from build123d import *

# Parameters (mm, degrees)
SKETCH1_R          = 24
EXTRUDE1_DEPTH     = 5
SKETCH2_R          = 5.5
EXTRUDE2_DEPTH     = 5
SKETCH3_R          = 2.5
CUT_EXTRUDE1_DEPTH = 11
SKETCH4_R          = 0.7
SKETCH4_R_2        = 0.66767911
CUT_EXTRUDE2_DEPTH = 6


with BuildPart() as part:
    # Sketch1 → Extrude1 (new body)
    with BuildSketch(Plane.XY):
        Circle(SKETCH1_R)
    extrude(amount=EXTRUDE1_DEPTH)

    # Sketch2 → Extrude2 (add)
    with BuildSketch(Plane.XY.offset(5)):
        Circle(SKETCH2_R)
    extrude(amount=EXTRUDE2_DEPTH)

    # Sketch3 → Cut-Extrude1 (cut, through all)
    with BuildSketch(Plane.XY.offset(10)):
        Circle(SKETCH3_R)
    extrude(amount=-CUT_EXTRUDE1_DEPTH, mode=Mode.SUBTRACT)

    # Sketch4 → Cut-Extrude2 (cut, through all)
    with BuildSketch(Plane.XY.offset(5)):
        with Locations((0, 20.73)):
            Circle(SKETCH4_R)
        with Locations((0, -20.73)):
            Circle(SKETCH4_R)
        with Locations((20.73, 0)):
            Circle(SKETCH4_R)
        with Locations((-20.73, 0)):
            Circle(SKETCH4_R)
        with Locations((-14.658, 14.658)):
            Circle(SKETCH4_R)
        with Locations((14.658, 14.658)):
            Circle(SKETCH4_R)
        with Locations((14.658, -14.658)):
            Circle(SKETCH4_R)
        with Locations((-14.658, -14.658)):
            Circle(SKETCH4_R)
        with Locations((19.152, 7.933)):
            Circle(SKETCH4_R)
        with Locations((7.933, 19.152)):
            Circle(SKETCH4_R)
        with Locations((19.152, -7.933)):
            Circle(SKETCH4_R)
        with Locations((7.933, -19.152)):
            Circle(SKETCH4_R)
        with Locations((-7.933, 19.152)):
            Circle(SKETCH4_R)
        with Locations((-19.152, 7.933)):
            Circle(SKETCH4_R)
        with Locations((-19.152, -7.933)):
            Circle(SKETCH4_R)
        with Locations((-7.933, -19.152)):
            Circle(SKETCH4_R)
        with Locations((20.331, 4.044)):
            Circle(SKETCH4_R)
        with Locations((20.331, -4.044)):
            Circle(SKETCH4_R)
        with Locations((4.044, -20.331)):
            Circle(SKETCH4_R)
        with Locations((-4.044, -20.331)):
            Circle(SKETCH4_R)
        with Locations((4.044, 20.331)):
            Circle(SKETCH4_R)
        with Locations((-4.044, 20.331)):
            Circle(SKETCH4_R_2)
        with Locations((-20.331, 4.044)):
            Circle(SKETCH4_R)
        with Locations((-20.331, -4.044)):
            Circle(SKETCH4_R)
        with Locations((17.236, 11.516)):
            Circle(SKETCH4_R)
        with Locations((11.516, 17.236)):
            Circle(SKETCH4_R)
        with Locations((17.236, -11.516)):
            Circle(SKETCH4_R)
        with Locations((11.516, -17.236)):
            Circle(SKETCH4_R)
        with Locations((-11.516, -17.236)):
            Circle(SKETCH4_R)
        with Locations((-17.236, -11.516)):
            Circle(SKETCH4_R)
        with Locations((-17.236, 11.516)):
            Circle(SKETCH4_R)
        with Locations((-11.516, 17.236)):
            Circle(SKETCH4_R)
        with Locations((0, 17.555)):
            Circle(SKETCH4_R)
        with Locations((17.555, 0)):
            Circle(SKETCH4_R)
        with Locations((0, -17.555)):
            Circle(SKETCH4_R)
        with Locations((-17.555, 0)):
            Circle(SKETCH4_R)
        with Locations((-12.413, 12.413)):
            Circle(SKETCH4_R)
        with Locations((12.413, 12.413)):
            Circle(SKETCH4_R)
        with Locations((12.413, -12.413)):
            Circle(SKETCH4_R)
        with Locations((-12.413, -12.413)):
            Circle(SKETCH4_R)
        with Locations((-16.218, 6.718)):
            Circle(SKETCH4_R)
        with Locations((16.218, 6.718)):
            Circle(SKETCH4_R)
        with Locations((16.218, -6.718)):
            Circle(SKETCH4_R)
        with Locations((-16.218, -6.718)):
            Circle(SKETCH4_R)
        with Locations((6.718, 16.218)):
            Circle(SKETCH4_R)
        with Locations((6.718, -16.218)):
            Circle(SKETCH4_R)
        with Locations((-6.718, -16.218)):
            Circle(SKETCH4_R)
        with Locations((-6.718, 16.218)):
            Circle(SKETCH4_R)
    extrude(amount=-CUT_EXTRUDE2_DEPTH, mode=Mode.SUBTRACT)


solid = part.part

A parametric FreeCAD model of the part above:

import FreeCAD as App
import Part
import Sketcher
from FreeCAD import Vector

doc = App.newDocument("Part")
body = doc.addObject("PartDesign::Body", "Body")

# Sketch on XY plane
sketch1 = body.newObject("Sketcher::SketchObject", "Sketch")
sketch1.AttachmentSupport = (doc.getObject("XY_Plane"), [""])
sketch1.MapMode = "FlatFace"
sketch1.addGeometry(Part.Circle(Vector(0, 0, 0), Vector(0, 0, 1), 24), False)
sketch1.addConstraint([
    Sketcher.Constraint("Coincident", 0, 3, -1, 1),
    Sketcher.Constraint("Diameter", 0, 48.0),
])
pad1 = body.newObject("PartDesign::Pad", "Pad")
pad1.Profile = sketch1
pad1.Length = 5

# Sketch on XY plane
sketch2 = body.newObject("Sketcher::SketchObject", "Sketch001")
sketch2.AttachmentSupport = (doc.getObject("XY_Plane"), [""])
sketch2.MapMode = "FlatFace"
sketch2.AttachmentOffset = App.Placement(Vector(0, 0, 5), App.Rotation())
sketch2.addGeometry(Part.Circle(Vector(0, 0, 0), Vector(0, 0, 1), 5.5), False)
sketch2.addConstraint([
    Sketcher.Constraint("Coincident", 0, 3, -1, 1),
    Sketcher.Constraint("Diameter", 0, 11.0),
])
pad2 = body.newObject("PartDesign::Pad", "Pad001")
pad2.Profile = sketch2
pad2.Length = 5

# Sketch on XY plane
sketch3 = body.newObject("Sketcher::SketchObject", "Sketch002")
sketch3.AttachmentSupport = (doc.getObject("XY_Plane"), [""])
sketch3.MapMode = "FlatFace"
sketch3.AttachmentOffset = App.Placement(Vector(0, 0, 10), App.Rotation())
sketch3.addGeometry(Part.Circle(Vector(0, 0, 0), Vector(0, 0, 1), 2.5), False)
sketch3.addConstraint([
    Sketcher.Constraint("Coincident", 0, 3, -1, 1),
    Sketcher.Constraint("Diameter", 0, 5.0),
])
pocket1 = body.newObject("PartDesign::Pocket", "Pocket")
pocket1.Profile = sketch3
pocket1.Type = "ThroughAll"

# Sketch on XY plane
sketch4 = body.newObject("Sketcher::SketchObject", "Sketch003")
sketch4.AttachmentSupport = (doc.getObject("XY_Plane"), [""])
sketch4.MapMode = "FlatFace"
sketch4.AttachmentOffset = App.Placement(Vector(0, 0, 5), App.Rotation())
sketch4.addGeometry([
    Part.Circle(Vector(0, 20.73, 0), Vector(0, 0, 1), 0.7),  # 0
    Part.Circle(Vector(0, -20.73, 0), Vector(0, 0, 1), 0.7),  # 1
    Part.Circle(Vector(20.73, 0, 0), Vector(0, 0, 1), 0.7),  # 2
    Part.Circle(Vector(-20.73, 0, 0), Vector(0, 0, 1), 0.7),  # 3
    Part.Circle(Vector(-14.658, 14.658, 0), Vector(0, 0, 1), 0.7),  # 4
    Part.Circle(Vector(14.658, 14.658, 0), Vector(0, 0, 1), 0.7),  # 5
    Part.Circle(Vector(14.658, -14.658, 0), Vector(0, 0, 1), 0.7),  # 6
    Part.Circle(Vector(-14.658, -14.658, 0), Vector(0, 0, 1), 0.7),  # 7
    Part.Circle(Vector(19.152, 7.933, 0), Vector(0, 0, 1), 0.7),  # 8
    Part.Circle(Vector(7.933, 19.152, 0), Vector(0, 0, 1), 0.7),  # 9
    Part.Circle(Vector(19.152, -7.933, 0), Vector(0, 0, 1), 0.7),  # 10
    Part.Circle(Vector(7.933, -19.152, 0), Vector(0, 0, 1), 0.7),  # 11
    Part.Circle(Vector(-7.933, 19.152, 0), Vector(0, 0, 1), 0.7),  # 12
    Part.Circle(Vector(-19.152, 7.933, 0), Vector(0, 0, 1), 0.7),  # 13
    Part.Circle(Vector(-19.152, -7.933, 0), Vector(0, 0, 1), 0.7),  # 14
    Part.Circle(Vector(-7.933, -19.152, 0), Vector(0, 0, 1), 0.7),  # 15
    Part.Circle(Vector(20.331, 4.044, 0), Vector(0, 0, 1), 0.7),  # 16
    Part.Circle(Vector(20.331, -4.044, 0), Vector(0, 0, 1), 0.7),  # 17
    Part.Circle(Vector(4.044, -20.331, 0), Vector(0, 0, 1), 0.7),  # 18
    Part.Circle(Vector(-4.044, -20.331, 0), Vector(0, 0, 1), 0.7),  # 19
    Part.Circle(Vector(4.044, 20.331, 0), Vector(0, 0, 1), 0.7),  # 20
    Part.Circle(Vector(-4.044, 20.331, 0), Vector(0, 0, 1), 0.667679),  # 21
    Part.Circle(Vector(-20.331, 4.044, 0), Vector(0, 0, 1), 0.7),  # 22
    Part.Circle(Vector(-20.331, -4.044, 0), Vector(0, 0, 1), 0.7),  # 23
    Part.Circle(Vector(17.236, 11.516, 0), Vector(0, 0, 1), 0.7),  # 24
    Part.Circle(Vector(11.516, 17.236, 0), Vector(0, 0, 1), 0.7),  # 25
    Part.Circle(Vector(17.236, -11.516, 0), Vector(0, 0, 1), 0.7),  # 26
    Part.Circle(Vector(11.516, -17.236, 0), Vector(0, 0, 1), 0.7),  # 27
    Part.Circle(Vector(-11.516, -17.236, 0), Vector(0, 0, 1), 0.7),  # 28
    Part.Circle(Vector(-17.236, -11.516, 0), Vector(0, 0, 1), 0.7),  # 29
    Part.Circle(Vector(-17.236, 11.516, 0), Vector(0, 0, 1), 0.7),  # 30
    Part.Circle(Vector(-11.516, 17.236, 0), Vector(0, 0, 1), 0.7),  # 31
    Part.Circle(Vector(0, 17.555, 0), Vector(0, 0, 1), 0.7),  # 32
    Part.Circle(Vector(17.555, 0, 0), Vector(0, 0, 1), 0.7),  # 33
    Part.Circle(Vector(0, -17.555, 0), Vector(0, 0, 1), 0.7),  # 34
    Part.Circle(Vector(-17.555, 0, 0), Vector(0, 0, 1), 0.7),  # 35
    Part.Circle(Vector(-12.413, 12.413, 0), Vector(0, 0, 1), 0.7),  # 36
    Part.Circle(Vector(12.413, 12.413, 0), Vector(0, 0, 1), 0.7),  # 37
    Part.Circle(Vector(12.413, -12.413, 0), Vector(0, 0, 1), 0.7),  # 38
    Part.Circle(Vector(-12.413, -12.413, 0), Vector(0, 0, 1), 0.7),  # 39
    Part.Circle(Vector(-16.218, 6.718, 0), Vector(0, 0, 1), 0.7),  # 40
    Part.Circle(Vector(16.218, 6.718, 0), Vector(0, 0, 1), 0.7),  # 41
    Part.Circle(Vector(16.218, -6.718, 0), Vector(0, 0, 1), 0.7),  # 42
    Part.Circle(Vector(-16.218, -6.718, 0), Vector(0, 0, 1), 0.7),  # 43
    Part.Circle(Vector(6.718, 16.218, 0), Vector(0, 0, 1), 0.7),  # 44
    Part.Circle(Vector(6.718, -16.218, 0), Vector(0, 0, 1), 0.7),  # 45
    Part.Circle(Vector(-6.718, -16.218, 0), Vector(0, 0, 1), 0.7),  # 46
    Part.Circle(Vector(-6.718, 16.218, 0), Vector(0, 0, 1), 0.7),  # 47
], False)
sketch4.addConstraint([
    Sketcher.Constraint("Equal", 0, 1),
    Sketcher.Constraint("Equal", 1, 2),
    Sketcher.Constraint("Equal", 2, 3),
    Sketcher.Constraint("Equal", 3, 4),
    Sketcher.Constraint("Equal", 4, 5),
    Sketcher.Constraint("Equal", 5, 6),
    Sketcher.Constraint("Equal", 6, 7),
    Sketcher.Constraint("Equal", 7, 8),
    Sketcher.Constraint("Equal", 8, 9),
    Sketcher.Constraint("Equal", 9, 10),
    Sketcher.Constraint("Equal", 10, 11),
    Sketcher.Constraint("Equal", 11, 12),
    Sketcher.Constraint("Equal", 12, 13),
    Sketcher.Constraint("Equal", 13, 14),
    Sketcher.Constraint("Equal", 14, 15),
    Sketcher.Constraint("Equal", 15, 16),
    Sketcher.Constraint("Equal", 16, 17),
    Sketcher.Constraint("Equal", 17, 18),
    Sketcher.Constraint("Equal", 18, 19),
    Sketcher.Constraint("Equal", 19, 20),
    Sketcher.Constraint("Equal", 20, 22),
    Sketcher.Constraint("Equal", 22, 23),
    Sketcher.Constraint("Equal", 23, 24),
    Sketcher.Constraint("Equal", 24, 25),
    Sketcher.Constraint("Equal", 25, 26),
    Sketcher.Constraint("Equal", 26, 27),
    Sketcher.Constraint("Equal", 27, 28),
    Sketcher.Constraint("Equal", 28, 29),
    Sketcher.Constraint("Equal", 29, 30),
    Sketcher.Constraint("Equal", 30, 31),
    Sketcher.Constraint("Equal", 31, 32),
    Sketcher.Constraint("Equal", 32, 33),
    Sketcher.Constraint("Equal", 33, 34),
    Sketcher.Constraint("Equal", 34, 35),
    Sketcher.Constraint("Equal", 35, 36),
    Sketcher.Constraint("Equal", 36, 37),
    Sketcher.Constraint("Equal", 37, 38),
    Sketcher.Constraint("Equal", 38, 39),
    Sketcher.Constraint("Equal", 39, 40),
    Sketcher.Constraint("Equal", 40, 41),
    Sketcher.Constraint("Equal", 41, 42),
    Sketcher.Constraint("Equal", 42, 43),
    Sketcher.Constraint("Equal", 43, 44),
    Sketcher.Constraint("Equal", 44, 45),
    Sketcher.Constraint("Equal", 45, 46),
    Sketcher.Constraint("Equal", 46, 47),
    Sketcher.Constraint("Symmetric", 0, 3, 1, 3, -1, 1),
    Sketcher.Constraint("Symmetric", 2, 3, 3, 3, -1, 1),
    Sketcher.Constraint("Symmetric", 4, 3, 6, 3, -1, 1),
    Sketcher.Constraint("Symmetric", 5, 3, 7, 3, -1, 1),
    Sketcher.Constraint("Symmetric", 11, 3, 12, 3, -1, 1),
    Sketcher.Constraint("Symmetric", 10, 3, 13, 3, -1, 1),
    Sketcher.Constraint("Symmetric", 8, 3, 14, 3, -1, 1),
    Sketcher.Constraint("Symmetric", 9, 3, 15, 3, -1, 1),
    Sketcher.Constraint("Symmetric", 19, 3, 20, 3, -1, 1),
    Sketcher.Constraint("Symmetric", 18, 3, 21, 3, -1, 1),
    Sketcher.Constraint("Symmetric", 17, 3, 22, 3, -1, 1),
    Sketcher.Constraint("Symmetric", 16, 3, 23, 3, -1, 1),
    Sketcher.Constraint("Symmetric", 25, 3, 28, 3, -1, 1),
    Sketcher.Constraint("Symmetric", 24, 3, 29, 3, -1, 1),
    Sketcher.Constraint("Symmetric", 26, 3, 30, 3, -1, 1),
    Sketcher.Constraint("Symmetric", 27, 3, 31, 3, -1, 1),
    Sketcher.Constraint("Symmetric", 32, 3, 34, 3, -1, 1),
    Sketcher.Constraint("Symmetric", 33, 3, 35, 3, -1, 1),
    Sketcher.Constraint("Symmetric", 36, 3, 38, 3, -1, 1),
    Sketcher.Constraint("Symmetric", 37, 3, 39, 3, -1, 1),
    Sketcher.Constraint("Symmetric", 40, 3, 42, 3, -1, 1),
    Sketcher.Constraint("Symmetric", 41, 3, 43, 3, -1, 1),
    Sketcher.Constraint("Symmetric", 44, 3, 46, 3, -1, 1),
    Sketcher.Constraint("Symmetric", 45, 3, 47, 3, -1, 1),
    Sketcher.Constraint("Symmetric", 4, 3, 5, 3, -2),
    Sketcher.Constraint("Symmetric", 9, 3, 12, 3, -2),
    Sketcher.Constraint("Symmetric", 8, 3, 13, 3, -2),
    Sketcher.Constraint("Symmetric", 18, 3, 19, 3, -2),
    Sketcher.Constraint("Symmetric", 16, 3, 22, 3, -2),
    Sketcher.Constraint("Symmetric", 27, 3, 28, 3, -2),
    Sketcher.Constraint("Symmetric", 26, 3, 29, 3, -2),
    Sketcher.Constraint("Symmetric", 36, 3, 37, 3, -2),
    Sketcher.Constraint("Symmetric", 40, 3, 41, 3, -2),
    Sketcher.Constraint("Symmetric", 45, 3, 46, 3, -2),
    Sketcher.Constraint("PointOnObject", 0, 3, -2),
    Sketcher.Constraint("PointOnObject", 2, 3, -1),
    Sketcher.Constraint("PointOnObject", 32, 3, -2),
    Sketcher.Constraint("PointOnObject", 33, 3, -1),
    Sketcher.Constraint("Diameter", 0, 1.4),
    Sketcher.Constraint("Diameter", 21, 1.335358),
    Sketcher.Constraint("DistanceY", -1, 1, 0, 3, 20.73),
    Sketcher.Constraint("DistanceX", -1, 1, 2, 3, 20.73),
    Sketcher.Constraint("DistanceX", 4, 3, 8, 3, 33.81),
    Sketcher.Constraint("DistanceX", 25, 3, 24, 3, 5.72),
    Sketcher.Constraint("DistanceY", 24, 3, 25, 3, 5.72),
    Sketcher.Constraint("DistanceX", 36, 3, 12, 3, 4.48),
    Sketcher.Constraint("DistanceY", 13, 3, 36, 3, 4.48),
    Sketcher.Constraint("DistanceX", 4, 3, -1, 1, 14.658),
    Sketcher.Constraint("DistanceY", -1, 1, 4, 3, 14.658),
    Sketcher.Constraint("DistanceY", -1, 1, 8, 3, 7.933),
    Sketcher.Constraint("DistanceX", -1, 1, 9, 3, 7.933),
    Sketcher.Constraint("DistanceY", -1, 1, 9, 3, 19.152),
    Sketcher.Constraint("DistanceX", -1, 1, 16, 3, 20.331),
    Sketcher.Constraint("DistanceY", -1, 1, 16, 3, 4.044),
    Sketcher.Constraint("DistanceX", -1, 1, 18, 3, 4.044),
    Sketcher.Constraint("DistanceY", 18, 3, -1, 1, 20.331),
    Sketcher.Constraint("DistanceX", -1, 1, 24, 3, 17.236),
    Sketcher.Constraint("DistanceY", -1, 1, 24, 3, 11.516),
    Sketcher.Constraint("DistanceY", -1, 1, 32, 3, 17.555),
    Sketcher.Constraint("DistanceX", -1, 1, 33, 3, 17.555),
    Sketcher.Constraint("DistanceX", 40, 3, -1, 1, 16.218),
    Sketcher.Constraint("DistanceY", -1, 1, 40, 3, 6.718),
    Sketcher.Constraint("DistanceX", -1, 1, 44, 3, 6.718),
    Sketcher.Constraint("DistanceY", -1, 1, 44, 3, 16.218),
])
pocket2 = body.newObject("PartDesign::Pocket", "Pocket001")
pocket2.Profile = sketch4
pocket2.Type = "ThroughAll"

doc.recompute()
